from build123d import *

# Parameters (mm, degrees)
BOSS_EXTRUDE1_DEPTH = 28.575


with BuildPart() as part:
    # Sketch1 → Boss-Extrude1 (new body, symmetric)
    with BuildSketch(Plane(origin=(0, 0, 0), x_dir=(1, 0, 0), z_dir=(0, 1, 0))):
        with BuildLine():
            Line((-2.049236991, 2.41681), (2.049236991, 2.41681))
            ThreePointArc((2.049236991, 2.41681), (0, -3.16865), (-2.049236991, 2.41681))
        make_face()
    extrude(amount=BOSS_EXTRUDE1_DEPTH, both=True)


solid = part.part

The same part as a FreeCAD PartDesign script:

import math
import FreeCAD as App
import Part
import Sketcher
Q = App.Units.Quantity

doc = App.newDocument("Part")
body = doc.addObject("PartDesign::Body", "Body")

sketch1 = body.newObject("Sketcher::SketchObject", "Sketch")
sketch1.AttachmentSupport = (doc.getObject("XZ_Plane"), [""])
sketch1.MapMode = "FlatFace"
sketch1.addGeometry(Part.LineSegment(App.Vector(2, -2.4, 0), App.Vector(-2, -2.4, 0)), False)
sketch1.addGeometry(Part.ArcOfCircle(Part.Circle(App.Vector(0, 0, 0), App.Vector(0, 0, 1), 3.2), math.radians(-50), math.radians(230)), False)
sketch1.addConstraint(Sketcher.Constraint("Coincident", 0, 1, 1, 1))
sketch1.addConstraint(Sketcher.Constraint("Coincident", 1, 2, 0, 2))
sketch1.addConstraint(Sketcher.Constraint("Horizontal", 0))
sketch1.addConstraint(Sketcher.Constraint("Coincident", 1, 3, -1, 1))
sketch1.addConstraint(Sketcher.Constraint("Radius", 1, 3.16865))
sketch1.addConstraint(Sketcher.Constraint("DistanceX", 0, 2, 0, 1, 4.098474))
pad1 = body.newObject("PartDesign::Pad", "Pad")
pad1.Profile = sketch1
pad1.Length = Q("2.25 in")
pad1.Midplane = True

doc.recompute()
